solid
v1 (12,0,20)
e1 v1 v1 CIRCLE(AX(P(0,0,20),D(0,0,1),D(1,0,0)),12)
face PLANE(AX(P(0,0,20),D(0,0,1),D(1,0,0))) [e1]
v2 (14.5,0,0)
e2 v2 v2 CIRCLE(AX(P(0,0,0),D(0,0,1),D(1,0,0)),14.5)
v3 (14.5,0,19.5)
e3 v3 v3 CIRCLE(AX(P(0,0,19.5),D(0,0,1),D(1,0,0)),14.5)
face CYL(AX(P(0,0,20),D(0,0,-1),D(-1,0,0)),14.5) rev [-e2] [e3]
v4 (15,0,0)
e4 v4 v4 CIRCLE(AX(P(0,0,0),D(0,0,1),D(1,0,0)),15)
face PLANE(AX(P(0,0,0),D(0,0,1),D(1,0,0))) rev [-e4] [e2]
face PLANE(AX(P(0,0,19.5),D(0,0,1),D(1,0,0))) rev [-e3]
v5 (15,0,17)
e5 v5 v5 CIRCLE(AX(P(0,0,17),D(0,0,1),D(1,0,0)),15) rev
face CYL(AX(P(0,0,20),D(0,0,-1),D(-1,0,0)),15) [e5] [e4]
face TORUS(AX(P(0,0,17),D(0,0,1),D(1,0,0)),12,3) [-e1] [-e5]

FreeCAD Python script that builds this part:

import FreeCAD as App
import Part
import Sketcher

V = App.Vector
Q = App.Units.Quantity


def edges_at(feature, points):
    """Names of the edges that pass closest to the given points."""
    edges = feature.Shape.Edges
    near = lambda p: min(range(len(edges)), key=lambda i: edges[i].distToShape(Part.Vertex(*p))[0])
    return sorted({f"Edge{near(p) + 1}" for p in points})


def faces_at(feature, points):
    """Names of the faces that lie closest to the given points."""
    faces = feature.Shape.Faces
    near = lambda p: min(range(len(faces)), key=lambda i: faces[i].distToShape(Part.Vertex(*p))[0])
    return sorted({f"Face{near(p) + 1}" for p in points})

doc = App.newDocument("Part")
body = doc.addObject("PartDesign::Body", "Body")

# Sketch on XY plane
sketch1 = doc.addObject("Sketcher::SketchObject", "Sketch")
body.addObject(sketch1)
sketch1.AttachmentSupport = (doc.XY_Plane, [""])
sketch1.MapMode = "FlatFace"
sketch1.addGeometry(Part.Circle(V(0, 0, 0), V(0, 0, 1), 15), False)
sketch1.addConstraint([
    Sketcher.Constraint("Coincident", 0, 3, -1, 1),
    Sketcher.Constraint("Diameter", 0, Q("30 mm")),
])
pad1 = doc.addObject("PartDesign::Pad", "Pad")
body.addObject(pad1)
pad1.Profile = sketch1
pad1.Length = 20
doc.recompute()

thickness = doc.addObject("PartDesign::Thickness", "Thickness")
body.addObject(thickness)
thickness.Base = (pad1, faces_at(pad1, [(0, 0, 0)]))
thickness.Value = 0.5
thickness.Reversed = True
thickness.Join = "Intersection"
doc.recompute()

fillet = doc.addObject("PartDesign::Fillet", "Fillet")
body.addObject(fillet)
fillet.Base = (thickness, edges_at(thickness, [(-15, 0, 20)]))
fillet.Radius = 3

doc.recompute()
